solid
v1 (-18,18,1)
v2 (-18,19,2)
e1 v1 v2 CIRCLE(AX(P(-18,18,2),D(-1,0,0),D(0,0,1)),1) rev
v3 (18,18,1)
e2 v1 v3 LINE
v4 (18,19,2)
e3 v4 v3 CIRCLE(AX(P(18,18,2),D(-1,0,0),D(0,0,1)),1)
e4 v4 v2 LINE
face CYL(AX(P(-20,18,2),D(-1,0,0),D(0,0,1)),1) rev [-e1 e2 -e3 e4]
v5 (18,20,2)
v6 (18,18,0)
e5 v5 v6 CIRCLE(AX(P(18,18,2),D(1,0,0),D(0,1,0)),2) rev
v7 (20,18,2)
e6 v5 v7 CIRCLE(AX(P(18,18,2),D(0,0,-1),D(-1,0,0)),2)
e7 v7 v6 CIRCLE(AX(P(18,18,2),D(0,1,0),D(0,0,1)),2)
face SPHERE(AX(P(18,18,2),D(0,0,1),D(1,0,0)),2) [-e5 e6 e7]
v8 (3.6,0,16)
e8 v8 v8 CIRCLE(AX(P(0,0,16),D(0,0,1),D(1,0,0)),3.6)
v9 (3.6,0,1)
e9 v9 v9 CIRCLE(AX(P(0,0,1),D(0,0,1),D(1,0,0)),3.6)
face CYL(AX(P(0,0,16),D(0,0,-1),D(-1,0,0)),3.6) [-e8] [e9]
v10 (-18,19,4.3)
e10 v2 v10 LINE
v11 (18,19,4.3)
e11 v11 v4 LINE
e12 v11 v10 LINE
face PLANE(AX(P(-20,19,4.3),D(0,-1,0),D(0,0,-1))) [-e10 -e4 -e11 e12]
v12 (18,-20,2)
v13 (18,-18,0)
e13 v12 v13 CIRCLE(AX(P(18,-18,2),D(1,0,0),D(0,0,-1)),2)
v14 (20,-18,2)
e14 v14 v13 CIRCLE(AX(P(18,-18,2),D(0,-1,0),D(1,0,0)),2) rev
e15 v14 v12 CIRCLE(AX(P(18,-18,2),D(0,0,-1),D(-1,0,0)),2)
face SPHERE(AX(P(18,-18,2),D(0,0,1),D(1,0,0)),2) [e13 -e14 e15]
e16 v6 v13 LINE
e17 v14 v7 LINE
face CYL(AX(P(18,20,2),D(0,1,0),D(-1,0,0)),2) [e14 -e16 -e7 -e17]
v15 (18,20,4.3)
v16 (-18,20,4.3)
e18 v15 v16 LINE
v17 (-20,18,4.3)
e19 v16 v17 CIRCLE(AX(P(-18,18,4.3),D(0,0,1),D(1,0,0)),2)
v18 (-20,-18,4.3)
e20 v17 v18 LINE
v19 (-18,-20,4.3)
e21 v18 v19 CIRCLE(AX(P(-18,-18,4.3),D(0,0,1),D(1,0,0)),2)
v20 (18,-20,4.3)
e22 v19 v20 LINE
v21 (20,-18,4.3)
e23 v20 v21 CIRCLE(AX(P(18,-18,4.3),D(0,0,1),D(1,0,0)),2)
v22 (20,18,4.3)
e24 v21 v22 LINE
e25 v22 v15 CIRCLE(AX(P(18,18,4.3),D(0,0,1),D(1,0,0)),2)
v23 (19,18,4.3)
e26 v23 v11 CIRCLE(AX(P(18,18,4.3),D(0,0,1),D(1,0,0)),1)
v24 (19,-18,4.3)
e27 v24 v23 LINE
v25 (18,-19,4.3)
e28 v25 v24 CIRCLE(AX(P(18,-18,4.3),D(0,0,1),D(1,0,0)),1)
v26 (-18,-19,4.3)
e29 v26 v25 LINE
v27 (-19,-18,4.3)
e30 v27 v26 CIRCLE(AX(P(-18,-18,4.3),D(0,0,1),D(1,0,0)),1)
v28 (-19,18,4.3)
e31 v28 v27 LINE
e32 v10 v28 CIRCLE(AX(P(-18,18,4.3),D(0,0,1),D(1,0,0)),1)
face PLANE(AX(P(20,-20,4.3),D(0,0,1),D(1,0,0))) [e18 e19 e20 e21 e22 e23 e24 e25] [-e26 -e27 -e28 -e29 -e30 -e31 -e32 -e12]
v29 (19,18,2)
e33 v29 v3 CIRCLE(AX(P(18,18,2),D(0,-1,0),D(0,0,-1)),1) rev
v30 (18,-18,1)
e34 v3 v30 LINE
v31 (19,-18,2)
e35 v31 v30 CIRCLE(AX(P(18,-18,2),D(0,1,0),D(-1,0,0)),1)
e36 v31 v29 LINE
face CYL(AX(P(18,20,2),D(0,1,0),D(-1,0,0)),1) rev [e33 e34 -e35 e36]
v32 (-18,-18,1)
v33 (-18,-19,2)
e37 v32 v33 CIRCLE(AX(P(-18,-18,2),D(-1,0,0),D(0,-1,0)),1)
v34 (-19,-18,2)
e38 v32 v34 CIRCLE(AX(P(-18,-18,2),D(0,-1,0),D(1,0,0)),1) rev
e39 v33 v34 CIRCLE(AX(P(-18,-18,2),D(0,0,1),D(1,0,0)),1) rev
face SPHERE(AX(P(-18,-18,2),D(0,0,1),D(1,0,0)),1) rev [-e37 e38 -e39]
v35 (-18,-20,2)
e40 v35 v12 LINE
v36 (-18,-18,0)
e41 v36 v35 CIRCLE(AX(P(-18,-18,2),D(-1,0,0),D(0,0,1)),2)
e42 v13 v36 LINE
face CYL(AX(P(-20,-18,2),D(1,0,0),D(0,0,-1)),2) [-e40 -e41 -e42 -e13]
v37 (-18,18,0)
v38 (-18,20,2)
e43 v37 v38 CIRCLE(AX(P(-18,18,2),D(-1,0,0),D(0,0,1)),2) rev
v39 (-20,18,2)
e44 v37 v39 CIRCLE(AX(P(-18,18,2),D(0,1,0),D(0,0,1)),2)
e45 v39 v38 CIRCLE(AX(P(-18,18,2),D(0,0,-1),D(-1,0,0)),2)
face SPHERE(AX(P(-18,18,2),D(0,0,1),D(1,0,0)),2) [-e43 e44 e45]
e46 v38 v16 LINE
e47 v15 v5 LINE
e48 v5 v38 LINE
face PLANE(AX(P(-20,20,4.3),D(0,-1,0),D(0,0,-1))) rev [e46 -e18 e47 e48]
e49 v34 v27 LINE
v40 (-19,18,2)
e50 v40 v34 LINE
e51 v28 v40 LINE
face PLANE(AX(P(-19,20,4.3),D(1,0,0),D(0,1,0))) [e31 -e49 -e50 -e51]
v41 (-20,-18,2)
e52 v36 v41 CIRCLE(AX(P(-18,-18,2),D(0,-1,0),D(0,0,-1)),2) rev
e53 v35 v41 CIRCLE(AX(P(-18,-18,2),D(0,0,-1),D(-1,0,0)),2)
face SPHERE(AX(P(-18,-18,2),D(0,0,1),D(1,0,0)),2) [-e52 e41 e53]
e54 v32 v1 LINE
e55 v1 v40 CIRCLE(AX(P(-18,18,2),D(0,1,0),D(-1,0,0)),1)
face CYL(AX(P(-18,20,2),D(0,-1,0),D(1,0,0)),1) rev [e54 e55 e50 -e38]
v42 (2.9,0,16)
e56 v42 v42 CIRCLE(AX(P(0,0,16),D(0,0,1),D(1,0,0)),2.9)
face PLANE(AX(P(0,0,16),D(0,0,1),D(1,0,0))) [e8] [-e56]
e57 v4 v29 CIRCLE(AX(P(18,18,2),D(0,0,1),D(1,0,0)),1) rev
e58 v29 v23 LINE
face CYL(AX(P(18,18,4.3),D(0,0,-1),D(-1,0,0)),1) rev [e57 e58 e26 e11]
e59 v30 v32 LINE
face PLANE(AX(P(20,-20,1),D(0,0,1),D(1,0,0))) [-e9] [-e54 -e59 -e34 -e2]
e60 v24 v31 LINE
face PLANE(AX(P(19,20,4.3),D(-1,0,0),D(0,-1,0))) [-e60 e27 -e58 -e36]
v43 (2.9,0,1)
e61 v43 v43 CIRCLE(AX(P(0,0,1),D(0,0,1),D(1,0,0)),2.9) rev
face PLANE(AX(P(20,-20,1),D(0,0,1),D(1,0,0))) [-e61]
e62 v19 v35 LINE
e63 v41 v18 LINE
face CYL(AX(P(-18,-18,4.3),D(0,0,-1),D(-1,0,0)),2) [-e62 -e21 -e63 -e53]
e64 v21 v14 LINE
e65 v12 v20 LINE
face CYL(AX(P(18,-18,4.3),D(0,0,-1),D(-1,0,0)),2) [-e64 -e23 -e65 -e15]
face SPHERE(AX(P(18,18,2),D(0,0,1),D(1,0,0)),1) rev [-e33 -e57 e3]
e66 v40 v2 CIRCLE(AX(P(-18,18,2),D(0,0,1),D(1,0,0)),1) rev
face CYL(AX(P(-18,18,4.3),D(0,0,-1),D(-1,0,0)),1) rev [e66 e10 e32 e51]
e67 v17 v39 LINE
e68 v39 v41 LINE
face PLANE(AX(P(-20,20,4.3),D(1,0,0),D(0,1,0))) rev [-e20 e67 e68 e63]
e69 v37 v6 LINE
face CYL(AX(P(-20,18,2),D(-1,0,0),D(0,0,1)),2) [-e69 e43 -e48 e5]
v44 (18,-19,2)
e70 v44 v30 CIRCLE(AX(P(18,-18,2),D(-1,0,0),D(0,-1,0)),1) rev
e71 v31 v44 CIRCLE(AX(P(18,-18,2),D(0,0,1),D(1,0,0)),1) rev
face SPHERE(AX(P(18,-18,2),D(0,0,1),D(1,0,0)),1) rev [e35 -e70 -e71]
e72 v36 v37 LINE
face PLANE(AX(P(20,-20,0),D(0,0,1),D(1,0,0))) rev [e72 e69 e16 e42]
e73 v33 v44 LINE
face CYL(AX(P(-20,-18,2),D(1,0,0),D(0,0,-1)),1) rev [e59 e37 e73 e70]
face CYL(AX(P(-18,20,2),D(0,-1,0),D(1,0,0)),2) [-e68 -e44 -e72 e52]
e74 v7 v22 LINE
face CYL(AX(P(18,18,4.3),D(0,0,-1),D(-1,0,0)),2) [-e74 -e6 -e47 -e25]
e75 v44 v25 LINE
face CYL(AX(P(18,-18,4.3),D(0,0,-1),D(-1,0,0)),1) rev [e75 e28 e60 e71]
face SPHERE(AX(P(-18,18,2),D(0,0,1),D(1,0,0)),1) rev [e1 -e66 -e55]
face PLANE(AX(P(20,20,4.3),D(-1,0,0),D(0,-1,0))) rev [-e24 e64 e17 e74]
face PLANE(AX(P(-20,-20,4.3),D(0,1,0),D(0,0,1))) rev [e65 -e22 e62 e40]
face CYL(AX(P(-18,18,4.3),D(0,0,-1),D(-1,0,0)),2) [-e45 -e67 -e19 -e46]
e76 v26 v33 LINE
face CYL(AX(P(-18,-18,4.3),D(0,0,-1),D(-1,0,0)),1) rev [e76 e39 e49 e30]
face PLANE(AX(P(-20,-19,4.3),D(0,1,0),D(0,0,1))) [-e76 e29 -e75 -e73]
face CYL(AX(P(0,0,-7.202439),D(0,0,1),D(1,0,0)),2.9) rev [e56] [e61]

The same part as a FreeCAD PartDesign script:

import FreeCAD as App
import Part
import Sketcher
from FreeCAD import Vector
Q = App.Units.Quantity


def edges_at(feature, points):
    """Names of the edges that pass closest to the given points."""
    edges = feature.Shape.Edges
    near = lambda p: min(range(len(edges)), key=lambda i: edges[i].distToShape(Part.Vertex(*p))[0])
    return sorted({f"Edge{near(p) + 1}" for p in points})


def faces_at(feature, points):
    """Names of the faces that lie closest to the given points."""
    faces = feature.Shape.Faces
    near = lambda p: min(range(len(faces)), key=lambda i: faces[i].distToShape(Part.Vertex(*p))[0])
    return sorted({f"Face{near(p) + 1}" for p in points})


def add_polygon(sketch, points):
    """Adds a closed chain of lines whose ends are joined by coincident constraints."""
    first, n = sketch.GeometryCount, len(points)
    for a, b in zip(points, points[1:] + points[:1]):
        sketch.addGeometry(Part.LineSegment(App.Vector(*a, 0), App.Vector(*b, 0)), False)
    for i in range(n):
        sketch.addConstraint(Sketcher.Constraint("Coincident", first + i, 2, first + (i + 1) % n, 1))

doc = App.newDocument("Part")
params = doc.addObject("Spreadsheet::Sheet", "Params")
for row, (alias, value) in enumerate([
    ("sketch1_width", "40 mm"),
    ("pad1_length", "4.3 mm"),
    ("fillet_radius", "2 mm"),
    ("thickness_wall", "1 mm"),
    ("sketch2_diameter", "7.2 mm"),
    ("pad2_length", "15 mm"),
    ("sketch3_diameter", "5.8 mm"),
    ("pocket1_length", "15 mm"),
], start=1):
    params.set(f"A{row}", alias)
    params.set(f"B{row}", "=" + value)
    params.setAlias(f"B{row}", alias)

body = doc.addObject("PartDesign::Body", "Body")

# Sketch on XY plane
sketch1 = body.newObject("Sketcher::SketchObject", "Sketch")
sketch1.AttachmentSupport = (doc.getObject("XY_Plane"), [""])
sketch1.MapMode = "FlatFace"
add_polygon(sketch1, [(-20, 20), (-20, -20), (20, -20), (20, 20)])  # lines 0-3
sketch1.addConstraint([
    Sketcher.Constraint("Vertical", 0),
    Sketcher.Constraint("Horizontal", 1),
    Sketcher.Constraint("Vertical", 2),
    Sketcher.Constraint("Horizontal", 3),
    Sketcher.Constraint("Symmetric", 0, 2, 2, 2, -1, 1),
    Sketcher.Constraint("Equal", 3, 0),
    Sketcher.Constraint("DistanceX", 1, 1, 1, 2, Q("40 mm")),
])
sketch1.setExpression("Constraints[10]", "Params.sketch1_width")
pad1 = body.newObject("PartDesign::Pad", "Pad")
pad1.Profile = sketch1
pad1.setExpression("Length", "Params.pad1_length")
doc.recompute()

fillet = body.newObject("PartDesign::Fillet", "Fillet")
fillet.Base = (pad1, edges_at(pad1, [
    (0, -20, 0),
    (-20, 0, 0),
    (0, 20, 0),
    (20, 0, 0),
    (20, -20, 2.15),
    (-20, -20, 2.15),
    (-20, 20, 2.15),
    (20, 20, 2.15),
]))
fillet.setExpression("Radius", "Params.fillet_radius")
doc.recompute()

thickness = body.newObject("PartDesign::Thickness", "Thickness")
thickness.Base = (fillet, faces_at(fillet, [(0, 0, 4.3)]))
thickness.setExpression("Value", "Params.thickness_wall")
thickness.Reversed = True
thickness.Join = "Intersection"

# Sketch on XY plane
sketch2 = body.newObject("Sketcher::SketchObject", "Sketch001")
sketch2.AttachmentSupport = (doc.getObject("XY_Plane"), [""])
sketch2.MapMode = "FlatFace"
sketch2.AttachmentOffset = App.Placement(Vector(0, 0, 1), App.Rotation())
sketch2.addGeometry(Part.Circle(Vector(0, 0, 0), Vector(0, 0, 1), 3.6), False)
sketch2.addConstraint([
    Sketcher.Constraint("Coincident", 0, 3, -1, 1),
    Sketcher.Constraint("Diameter", 0, Q("7.2 mm")),
])
sketch2.setExpression("Constraints[1]", "Params.sketch2_diameter")
pad2 = body.newObject("PartDesign::Pad", "Pad001")
pad2.Profile = sketch2
pad2.setExpression("Length", "Params.pad2_length")

# Sketch on XY plane
sketch3 = body.newObject("Sketcher::SketchObject", "Sketch002")
sketch3.AttachmentSupport = (doc.getObject("XY_Plane"), [""])
sketch3.MapMode = "FlatFace"
sketch3.AttachmentOffset = App.Placement(Vector(0, 0, 16), App.Rotation())
sketch3.addGeometry(Part.Circle(Vector(0, 0, 0), Vector(0, 0, 1), 2.9), False)
sketch3.addConstraint([
    Sketcher.Constraint("Coincident", 0, 3, -1, 1),
    Sketcher.Constraint("Diameter", 0, Q("5.8 mm")),
])
sketch3.setExpression("Constraints[1]", "Params.sketch3_diameter")
pocket1 = body.newObject("PartDesign::Pocket", "Pocket")
pocket1.Profile = sketch3
pocket1.setExpression("Length", "Params.pocket1_length")

doc.recompute()
